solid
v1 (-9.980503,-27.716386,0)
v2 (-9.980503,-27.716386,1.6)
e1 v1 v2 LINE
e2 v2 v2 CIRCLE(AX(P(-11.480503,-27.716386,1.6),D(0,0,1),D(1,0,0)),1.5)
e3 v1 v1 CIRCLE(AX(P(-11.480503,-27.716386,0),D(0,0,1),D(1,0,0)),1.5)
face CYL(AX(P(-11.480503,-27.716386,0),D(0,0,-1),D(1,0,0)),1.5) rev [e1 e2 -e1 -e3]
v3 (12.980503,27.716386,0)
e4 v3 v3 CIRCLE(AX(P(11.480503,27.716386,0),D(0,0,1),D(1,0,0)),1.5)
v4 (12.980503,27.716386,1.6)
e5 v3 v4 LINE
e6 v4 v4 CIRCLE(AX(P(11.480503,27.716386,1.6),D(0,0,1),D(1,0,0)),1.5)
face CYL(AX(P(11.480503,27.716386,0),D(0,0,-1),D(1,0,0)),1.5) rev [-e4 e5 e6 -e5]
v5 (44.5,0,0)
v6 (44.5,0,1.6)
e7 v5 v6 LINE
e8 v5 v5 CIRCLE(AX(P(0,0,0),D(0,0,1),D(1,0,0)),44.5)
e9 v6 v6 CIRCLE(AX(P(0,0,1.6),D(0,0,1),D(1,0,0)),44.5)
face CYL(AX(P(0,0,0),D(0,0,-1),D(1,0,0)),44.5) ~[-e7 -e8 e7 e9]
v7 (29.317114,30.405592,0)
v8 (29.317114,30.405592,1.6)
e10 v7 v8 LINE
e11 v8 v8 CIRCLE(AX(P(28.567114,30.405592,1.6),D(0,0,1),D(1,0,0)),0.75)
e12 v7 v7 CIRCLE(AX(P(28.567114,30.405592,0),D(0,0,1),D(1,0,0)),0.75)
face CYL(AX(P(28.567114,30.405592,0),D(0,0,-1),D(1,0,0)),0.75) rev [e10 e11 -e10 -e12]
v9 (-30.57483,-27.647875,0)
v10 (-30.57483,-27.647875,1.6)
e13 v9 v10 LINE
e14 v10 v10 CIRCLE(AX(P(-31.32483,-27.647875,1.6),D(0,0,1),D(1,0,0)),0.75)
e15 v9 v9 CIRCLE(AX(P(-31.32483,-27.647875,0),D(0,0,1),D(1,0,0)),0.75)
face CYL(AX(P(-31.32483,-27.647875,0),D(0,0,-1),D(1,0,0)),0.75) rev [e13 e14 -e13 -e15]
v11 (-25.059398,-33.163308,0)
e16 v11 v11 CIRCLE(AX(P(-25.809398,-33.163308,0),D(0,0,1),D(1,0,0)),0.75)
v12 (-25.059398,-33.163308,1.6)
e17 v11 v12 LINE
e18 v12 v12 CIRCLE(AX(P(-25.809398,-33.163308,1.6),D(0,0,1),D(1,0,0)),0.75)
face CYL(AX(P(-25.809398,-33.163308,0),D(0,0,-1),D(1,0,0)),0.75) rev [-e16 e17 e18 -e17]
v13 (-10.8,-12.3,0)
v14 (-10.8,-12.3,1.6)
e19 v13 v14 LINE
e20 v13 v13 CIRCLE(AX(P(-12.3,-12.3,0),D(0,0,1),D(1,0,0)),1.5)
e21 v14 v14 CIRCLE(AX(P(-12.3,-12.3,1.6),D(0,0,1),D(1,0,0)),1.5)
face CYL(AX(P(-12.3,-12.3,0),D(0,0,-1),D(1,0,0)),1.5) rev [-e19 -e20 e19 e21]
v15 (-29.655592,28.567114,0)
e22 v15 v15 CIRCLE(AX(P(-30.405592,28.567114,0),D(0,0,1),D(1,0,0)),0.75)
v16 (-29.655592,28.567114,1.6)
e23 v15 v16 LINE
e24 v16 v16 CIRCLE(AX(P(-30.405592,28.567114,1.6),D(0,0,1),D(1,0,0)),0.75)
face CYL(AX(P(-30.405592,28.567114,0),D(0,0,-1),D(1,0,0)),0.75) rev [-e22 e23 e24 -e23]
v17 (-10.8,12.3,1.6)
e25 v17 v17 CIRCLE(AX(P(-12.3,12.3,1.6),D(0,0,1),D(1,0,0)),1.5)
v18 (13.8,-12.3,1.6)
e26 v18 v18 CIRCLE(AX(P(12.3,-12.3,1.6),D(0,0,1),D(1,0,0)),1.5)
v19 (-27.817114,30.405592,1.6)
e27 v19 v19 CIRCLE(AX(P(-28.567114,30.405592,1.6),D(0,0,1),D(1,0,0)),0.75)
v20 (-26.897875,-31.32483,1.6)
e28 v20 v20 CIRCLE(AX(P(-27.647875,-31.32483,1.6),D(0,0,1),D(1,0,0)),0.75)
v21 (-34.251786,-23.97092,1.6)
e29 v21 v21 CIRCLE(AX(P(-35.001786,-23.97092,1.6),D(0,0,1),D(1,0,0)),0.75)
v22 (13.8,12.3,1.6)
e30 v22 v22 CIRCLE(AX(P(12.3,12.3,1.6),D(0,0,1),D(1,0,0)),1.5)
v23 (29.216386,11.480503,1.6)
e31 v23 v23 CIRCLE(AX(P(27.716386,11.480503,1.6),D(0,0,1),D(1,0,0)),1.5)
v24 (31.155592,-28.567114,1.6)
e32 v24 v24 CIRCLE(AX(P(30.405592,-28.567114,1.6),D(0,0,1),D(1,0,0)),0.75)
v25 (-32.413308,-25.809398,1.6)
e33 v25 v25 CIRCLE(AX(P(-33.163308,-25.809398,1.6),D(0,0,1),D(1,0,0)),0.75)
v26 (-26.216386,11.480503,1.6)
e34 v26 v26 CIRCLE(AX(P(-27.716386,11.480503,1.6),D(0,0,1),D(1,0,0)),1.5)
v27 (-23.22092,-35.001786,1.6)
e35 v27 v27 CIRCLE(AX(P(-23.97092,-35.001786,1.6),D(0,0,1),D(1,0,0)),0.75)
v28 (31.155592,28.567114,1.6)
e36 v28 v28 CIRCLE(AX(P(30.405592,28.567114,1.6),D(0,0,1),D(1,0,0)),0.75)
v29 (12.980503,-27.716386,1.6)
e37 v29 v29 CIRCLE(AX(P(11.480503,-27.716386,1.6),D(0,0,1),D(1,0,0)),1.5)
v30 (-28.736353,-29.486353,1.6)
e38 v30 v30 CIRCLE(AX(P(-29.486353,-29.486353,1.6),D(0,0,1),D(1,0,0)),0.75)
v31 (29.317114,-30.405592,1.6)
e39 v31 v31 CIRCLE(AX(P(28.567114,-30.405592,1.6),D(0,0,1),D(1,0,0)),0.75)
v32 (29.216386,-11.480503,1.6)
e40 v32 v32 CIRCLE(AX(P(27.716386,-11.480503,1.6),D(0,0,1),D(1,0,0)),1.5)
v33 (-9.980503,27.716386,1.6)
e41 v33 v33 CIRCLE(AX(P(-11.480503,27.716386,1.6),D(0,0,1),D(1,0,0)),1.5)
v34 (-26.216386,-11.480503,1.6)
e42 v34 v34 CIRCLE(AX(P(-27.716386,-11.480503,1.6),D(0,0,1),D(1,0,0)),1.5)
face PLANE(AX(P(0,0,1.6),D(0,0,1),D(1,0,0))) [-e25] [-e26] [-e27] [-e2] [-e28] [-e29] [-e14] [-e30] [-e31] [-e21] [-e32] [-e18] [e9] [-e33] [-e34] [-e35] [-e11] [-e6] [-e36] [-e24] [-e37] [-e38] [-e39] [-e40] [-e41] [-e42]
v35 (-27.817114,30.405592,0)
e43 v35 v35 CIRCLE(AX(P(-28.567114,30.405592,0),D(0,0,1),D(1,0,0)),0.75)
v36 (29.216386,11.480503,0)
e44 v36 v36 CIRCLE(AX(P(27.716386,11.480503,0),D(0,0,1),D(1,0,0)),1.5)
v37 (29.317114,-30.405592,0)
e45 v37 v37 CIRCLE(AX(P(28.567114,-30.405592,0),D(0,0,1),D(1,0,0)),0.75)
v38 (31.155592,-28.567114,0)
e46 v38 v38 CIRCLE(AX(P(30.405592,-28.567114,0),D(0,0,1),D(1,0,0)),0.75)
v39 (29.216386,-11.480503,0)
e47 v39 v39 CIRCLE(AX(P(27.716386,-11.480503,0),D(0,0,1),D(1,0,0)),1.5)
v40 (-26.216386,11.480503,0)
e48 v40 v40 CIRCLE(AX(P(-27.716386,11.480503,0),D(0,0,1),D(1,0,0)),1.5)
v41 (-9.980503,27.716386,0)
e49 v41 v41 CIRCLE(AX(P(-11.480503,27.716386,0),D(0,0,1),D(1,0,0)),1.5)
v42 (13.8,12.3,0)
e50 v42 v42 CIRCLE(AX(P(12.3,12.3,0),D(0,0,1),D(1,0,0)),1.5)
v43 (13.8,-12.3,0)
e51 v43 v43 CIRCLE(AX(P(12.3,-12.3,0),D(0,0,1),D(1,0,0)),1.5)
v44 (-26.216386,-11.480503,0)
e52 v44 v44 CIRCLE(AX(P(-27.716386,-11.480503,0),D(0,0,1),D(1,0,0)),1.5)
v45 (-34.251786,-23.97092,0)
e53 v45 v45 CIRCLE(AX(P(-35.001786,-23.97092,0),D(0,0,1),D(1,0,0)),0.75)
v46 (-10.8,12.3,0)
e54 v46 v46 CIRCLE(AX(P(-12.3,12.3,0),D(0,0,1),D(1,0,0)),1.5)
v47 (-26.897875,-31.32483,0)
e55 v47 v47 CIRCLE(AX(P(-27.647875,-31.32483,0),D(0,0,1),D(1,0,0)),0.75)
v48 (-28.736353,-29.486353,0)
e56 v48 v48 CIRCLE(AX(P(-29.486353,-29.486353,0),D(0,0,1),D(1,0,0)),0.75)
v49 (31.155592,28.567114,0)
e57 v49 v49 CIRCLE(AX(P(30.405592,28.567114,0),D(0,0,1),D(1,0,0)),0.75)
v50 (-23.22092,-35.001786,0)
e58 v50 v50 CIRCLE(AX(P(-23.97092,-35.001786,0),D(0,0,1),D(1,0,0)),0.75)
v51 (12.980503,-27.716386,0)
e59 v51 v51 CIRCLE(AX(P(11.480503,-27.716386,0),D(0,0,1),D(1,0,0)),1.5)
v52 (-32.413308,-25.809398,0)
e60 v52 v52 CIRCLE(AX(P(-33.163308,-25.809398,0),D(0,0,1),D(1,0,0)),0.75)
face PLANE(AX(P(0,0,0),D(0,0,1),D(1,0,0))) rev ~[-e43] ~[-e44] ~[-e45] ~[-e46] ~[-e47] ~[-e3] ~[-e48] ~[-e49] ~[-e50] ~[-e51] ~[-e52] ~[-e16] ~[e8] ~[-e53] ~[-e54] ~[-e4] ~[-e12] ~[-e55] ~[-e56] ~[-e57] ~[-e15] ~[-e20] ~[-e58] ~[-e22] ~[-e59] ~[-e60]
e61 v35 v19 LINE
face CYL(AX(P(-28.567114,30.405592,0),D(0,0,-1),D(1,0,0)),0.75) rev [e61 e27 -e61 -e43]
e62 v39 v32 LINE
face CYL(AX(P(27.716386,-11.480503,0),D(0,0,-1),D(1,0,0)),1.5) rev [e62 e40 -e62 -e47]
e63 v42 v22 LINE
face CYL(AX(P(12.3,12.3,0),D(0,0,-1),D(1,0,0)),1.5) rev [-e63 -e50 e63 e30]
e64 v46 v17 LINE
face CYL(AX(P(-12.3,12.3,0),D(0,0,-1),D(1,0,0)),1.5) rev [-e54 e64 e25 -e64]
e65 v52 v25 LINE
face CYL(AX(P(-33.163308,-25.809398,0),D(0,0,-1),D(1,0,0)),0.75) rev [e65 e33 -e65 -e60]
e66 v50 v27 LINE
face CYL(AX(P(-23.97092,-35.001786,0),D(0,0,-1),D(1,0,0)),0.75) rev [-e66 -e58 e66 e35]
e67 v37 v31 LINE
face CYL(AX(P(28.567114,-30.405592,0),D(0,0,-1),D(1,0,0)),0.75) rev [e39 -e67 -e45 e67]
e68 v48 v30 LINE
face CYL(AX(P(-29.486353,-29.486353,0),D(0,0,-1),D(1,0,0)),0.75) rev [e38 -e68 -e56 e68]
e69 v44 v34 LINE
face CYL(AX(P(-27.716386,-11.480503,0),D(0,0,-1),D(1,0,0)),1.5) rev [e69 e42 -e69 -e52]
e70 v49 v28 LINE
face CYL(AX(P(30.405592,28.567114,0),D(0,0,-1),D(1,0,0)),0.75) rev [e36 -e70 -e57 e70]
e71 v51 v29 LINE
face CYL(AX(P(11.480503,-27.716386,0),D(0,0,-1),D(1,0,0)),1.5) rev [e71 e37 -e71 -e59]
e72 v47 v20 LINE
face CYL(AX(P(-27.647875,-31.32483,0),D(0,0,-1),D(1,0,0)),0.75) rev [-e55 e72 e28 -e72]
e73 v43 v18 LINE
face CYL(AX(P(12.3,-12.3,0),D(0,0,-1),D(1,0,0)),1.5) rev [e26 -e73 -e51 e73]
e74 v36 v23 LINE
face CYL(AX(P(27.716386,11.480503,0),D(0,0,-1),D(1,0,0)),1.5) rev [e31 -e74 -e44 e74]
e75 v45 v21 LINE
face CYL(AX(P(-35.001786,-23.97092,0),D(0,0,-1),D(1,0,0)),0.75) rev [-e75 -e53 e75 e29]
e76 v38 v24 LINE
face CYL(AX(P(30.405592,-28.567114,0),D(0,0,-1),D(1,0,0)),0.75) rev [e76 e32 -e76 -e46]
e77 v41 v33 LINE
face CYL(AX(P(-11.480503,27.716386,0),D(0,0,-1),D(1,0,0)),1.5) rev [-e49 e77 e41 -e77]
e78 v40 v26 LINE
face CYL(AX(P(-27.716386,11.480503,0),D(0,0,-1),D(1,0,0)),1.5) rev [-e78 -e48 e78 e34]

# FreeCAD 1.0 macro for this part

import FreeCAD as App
import Part
import Sketcher
from FreeCAD import Vector

doc = App.newDocument("Part")
params = doc.addObject("Spreadsheet::Sheet", "Params")
for row, (alias, value) in enumerate([
    ("sketch1_diameter", "89 mm"),
    ("sketch1_diameter2", "3 mm"),
    ("sketch1_diameter3", "1.5 mm"),
    ("pad1_length", "1.6 mm"),
], start=1):
    params.set(f"A{row}", alias)
    params.set(f"B{row}", "=" + value)
    params.setAlias(f"B{row}", alias)

body = doc.addObject("PartDesign::Body", "Body")

sketch1 = body.newObject("Sketcher::SketchObject", "Sketch")
sketch1.AttachmentSupport = (doc.getObject("XY_Plane"), [""])
sketch1.MapMode = "FlatFace"
sketch1.addGeometry(Part.Circle(Vector(0, 0, 0), Vector(0, 0, 1), 44.5), False)
sketch1.addGeometry(Part.Circle(Vector(-29.5, -29.5, 0), Vector(0, 0, 1), 0.8), False)
sketch1.addGeometry(Part.Circle(Vector(-27.6, -31.3, 0), Vector(0, 0, 1), 0.8), False)
sketch1.addGeometry(Part.Circle(Vector(-31.3, -27.6, 0), Vector(0, 0, 1), 0.8), False)
sketch1.addGeometry(Part.Circle(Vector(-24, -35, 0), Vector(0, 0, 1), 0.8), False)
sketch1.addGeometry(Part.Circle(Vector(-25.8, -33.2, 0), Vector(0, 0, 1), 0.8), False)
sketch1.addGeometry(Part.Circle(Vector(-33.2, -25.8, 0), Vector(0, 0, 1), 0.8), False)
sketch1.addGeometry(Part.Circle(Vector(-35, -24, 0), Vector(0, 0, 1), 0.8), False)
sketch1.addGeometry(Part.Circle(Vector(-11.5, -27.7, 0), Vector(0, 0, 1), 1.5), False)
sketch1.addGeometry(Part.Circle(Vector(-27.7, -11.5, 0), Vector(0, 0, 1), 1.5), False)
sketch1.addGeometry(Part.Circle(Vector(-12.3, -12.3, 0), Vector(0, 0, 1), 1.5), False)
sketch1.addGeometry(Part.Circle(Vector(11.5, -27.7, 0), Vector(0, 0, 1), 1.5), False)
sketch1.addGeometry(Part.Circle(Vector(28.6, -30.4, 0), Vector(0, 0, 1), 0.8), False)
sketch1.addGeometry(Part.Circle(Vector(30.4, -28.6, 0), Vector(0, 0, 1), 0.8), False)
sketch1.addGeometry(Part.Circle(Vector(12.3, -12.3, 0), Vector(0, 0, 1), 1.5), False)
sketch1.addGeometry(Part.Circle(Vector(27.7, -11.5, 0), Vector(0, 0, 1), 1.5), False)
sketch1.addGeometry(Part.Circle(Vector(-27.7, 11.5, 0), Vector(0, 0, 1), 1.5), False)
sketch1.addGeometry(Part.Circle(Vector(-12.3, 12.3, 0), Vector(0, 0, 1), 1.5), False)
sketch1.addGeometry(Part.Circle(Vector(-30.4, 28.6, 0), Vector(0, 0, 1), 0.8), False)
sketch1.addGeometry(Part.Circle(Vector(-28.6, 30.4, 0), Vector(0, 0, 1), 0.8), False)
sketch1.addGeometry(Part.Circle(Vector(-11.5, 27.7, 0), Vector(0, 0, 1), 1.5), False)
sketch1.addGeometry(Part.Circle(Vector(12.3, 12.3, 0), Vector(0, 0, 1), 1.5), False)
sketch1.addGeometry(Part.Circle(Vector(27.7, 11.5, 0), Vector(0, 0, 1), 1.5), False)
sketch1.addGeometry(Part.Circle(Vector(11.5, 27.7, 0), Vector(0, 0, 1), 1.5), False)
sketch1.addGeometry(Part.Circle(Vector(30.4, 28.6, 0), Vector(0, 0, 1), 0.8), False)
sketch1.addGeometry(Part.Circle(Vector(28.6, 30.4, 0), Vector(0, 0, 1), 0.8), False)
sketch1.addConstraint(Sketcher.Constraint("Coincident", 0, 3, -1, 1))
sketch1.addConstraint(Sketcher.Constraint("Equal", 1, 2))
sketch1.addConstraint(Sketcher.Constraint("Equal", 2, 3))
sketch1.addConstraint(Sketcher.Constraint("Equal", 3, 4))
sketch1.addConstraint(Sketcher.Constraint("Equal", 4, 5))
sketch1.addConstraint(Sketcher.Constraint("Equal", 5, 6))
sketch1.addConstraint(Sketcher.Constraint("Equal", 6, 7))
sketch1.addConstraint(Sketcher.Constraint("Equal", 8, 9))
sketch1.addConstraint(Sketcher.Constraint("Equal", 9, 10))
sketch1.addConstraint(Sketcher.Constraint("Equal", 10, 11))
sketch1.addConstraint(Sketcher.Constraint("Equal", 7, 12))
sketch1.addConstraint(Sketcher.Constraint("Equal", 12, 13))
sketch1.addConstraint(Sketcher.Constraint("Equal", 11, 14))
sketch1.addConstraint(Sketcher.Constraint("Equal", 14, 15))
sketch1.addConstraint(Sketcher.Constraint("Equal", 15, 16))
sketch1.addConstraint(Sketcher.Constraint("Equal", 16, 17))
sketch1.addConstraint(Sketcher.Constraint("Equal", 13, 18))
sketch1.addConstraint(Sketcher.Constraint("Equal", 18, 19))
sketch1.addConstraint(Sketcher.Constraint("Equal", 17, 20))
sketch1.addConstraint(Sketcher.Constraint("Equal", 20, 21))
sketch1.addConstraint(Sketcher.Constraint("Equal", 21, 22))
sketch1.addConstraint(Sketcher.Constraint("Equal", 22, 23))
sketch1.addConstraint(Sketcher.Constraint("Equal", 19, 24))
sketch1.addConstraint(Sketcher.Constraint("Equal", 24, 25))
sketch1.addConstraint(Sketcher.Constraint("Symmetric", 15, 3, 16, 3, -1, 1))
sketch1.addConstraint(Sketcher.Constraint("Symmetric", 14, 3, 17, 3, -1, 1))
sketch1.addConstraint(Sketcher.Constraint("Symmetric", 13, 3, 18, 3, -1, 1))
sketch1.addConstraint(Sketcher.Constraint("Symmetric", 12, 3, 19, 3, -1, 1))
sketch1.addConstraint(Sketcher.Constraint("Symmetric", 11, 3, 20, 3, -1, 1))
sketch1.addConstraint(Sketcher.Constraint("Symmetric", 10, 3, 21, 3, -1, 1))
sketch1.addConstraint(Sketcher.Constraint("Symmetric", 9, 3, 22, 3, -1, 1))
sketch1.addConstraint(Sketcher.Constraint("Symmetric", 8, 3, 23, 3, -1, 1))
sketch1.addConstraint(Sketcher.Constraint("Symmetric", 8, 3, 11, 3, -2))
sketch1.addConstraint(Sketcher.Constraint("Symmetric", 10, 3, 14, 3, -2))
sketch1.addConstraint(Sketcher.Constraint("Symmetric", 9, 3, 15, 3, -2))
sketch1.addConstraint(Sketcher.Constraint("Symmetric", 18, 3, 24, 3, -2))
sketch1.addConstraint(Sketcher.Constraint("Symmetric", 19, 3, 25, 3, -2))
sketch1.addConstraint(Sketcher.Constraint("Diameter", 0, 89.0))
sketch1.addConstraint(Sketcher.Constraint("Diameter", 8, 3.0))
sketch1.addConstraint(Sketcher.Constraint("Diameter", 1, 1.5))
sketch1.addConstraint(Sketcher.Constraint("DistanceX", 10, 3, -1, 1, 12.3))
sketch1.addConstraint(Sketcher.Constraint("DistanceY", 10, 3, -1, 1, 12.3))
sketch1.addConstraint(Sketcher.Constraint("DistanceX", 5, 3, -1, 1, 25.809398))
sketch1.addConstraint(Sketcher.Constraint("DistanceY", 6, 3, -1, 1, 25.809398))
sketch1.addConstraint(Sketcher.Constraint("DistanceY", 4, 3, 8, 3, 7.2854))
sketch1.addConstraint(Sketcher.Constraint("DistanceX", 7, 3, 9, 3, 7.2854))
sketch1.addConstraint(Sketcher.Constraint("DistanceX", 5, 3, 11, 3, 37.289901))
sketch1.addConstraint(Sketcher.Constraint("DistanceY", 6, 3, 16, 3, 37.289901))
sketch1.addConstraint(Sketcher.Constraint("DistanceY", 2, 3, -1, 1, 31.32483))
sketch1.addConstraint(Sketcher.Constraint("DistanceX", 3, 3, -1, 1, 31.32483))
sketch1.addConstraint(Sketcher.Constraint("DistanceX", 4, 3, -1, 1, 23.97092))
sketch1.addConstraint(Sketcher.Constraint("DistanceY", 7, 3, -1, 1, 23.97092))
sketch1.addConstraint(Sketcher.Constraint("DistanceY", 12, 3, -1, 1, 30.405592))
sketch1.addConstraint(Sketcher.Constraint("DistanceX", -1, 1, 13, 3, 30.405592))
sketch1.addConstraint(Sketcher.Constraint("DistanceX", 1, 3, 2, 3, 1.838478))
sketch1.addConstraint(Sketcher.Constraint("DistanceY", 1, 3, 3, 3, 1.838478))
sketch1.addConstraint(Sketcher.Constraint("DistanceY", 4, 3, 3, 3, 7.353911))
sketch1.addConstraint(Sketcher.Constraint("DistanceY", 5, 3, 2, 3, 1.838478))
sketch1.addConstraint(Sketcher.Constraint("DistanceY", 4, 3, 5, 3, 1.838478))
sketch1.addConstraint(Sketcher.Constraint("DistanceX", 6, 3, 3, 3, 1.838478))
sketch1.addConstraint(Sketcher.Constraint("DistanceX", 7, 3, 6, 3, 1.838478))
sketch1.addConstraint(Sketcher.Constraint("DistanceX", 7, 3, 2, 3, 7.353911))
sketch1.addConstraint(Sketcher.Constraint("DistanceX", 11, 3, 12, 3, 17.086611))
sketch1.addConstraint(Sketcher.Constraint("DistanceY", 13, 3, 11, 3, 0.850728))
sketch1.setExpression("Constraints[37]", "Params.sketch1_diameter")
sketch1.setExpression("Constraints[38]", "Params.sketch1_diameter2")
sketch1.setExpression("Constraints[39]", "Params.sketch1_diameter3")
pad1 = body.newObject("PartDesign::Pad", "Pad")
pad1.Profile = sketch1
pad1.setExpression("Length", "Params.pad1_length")

doc.recompute()
